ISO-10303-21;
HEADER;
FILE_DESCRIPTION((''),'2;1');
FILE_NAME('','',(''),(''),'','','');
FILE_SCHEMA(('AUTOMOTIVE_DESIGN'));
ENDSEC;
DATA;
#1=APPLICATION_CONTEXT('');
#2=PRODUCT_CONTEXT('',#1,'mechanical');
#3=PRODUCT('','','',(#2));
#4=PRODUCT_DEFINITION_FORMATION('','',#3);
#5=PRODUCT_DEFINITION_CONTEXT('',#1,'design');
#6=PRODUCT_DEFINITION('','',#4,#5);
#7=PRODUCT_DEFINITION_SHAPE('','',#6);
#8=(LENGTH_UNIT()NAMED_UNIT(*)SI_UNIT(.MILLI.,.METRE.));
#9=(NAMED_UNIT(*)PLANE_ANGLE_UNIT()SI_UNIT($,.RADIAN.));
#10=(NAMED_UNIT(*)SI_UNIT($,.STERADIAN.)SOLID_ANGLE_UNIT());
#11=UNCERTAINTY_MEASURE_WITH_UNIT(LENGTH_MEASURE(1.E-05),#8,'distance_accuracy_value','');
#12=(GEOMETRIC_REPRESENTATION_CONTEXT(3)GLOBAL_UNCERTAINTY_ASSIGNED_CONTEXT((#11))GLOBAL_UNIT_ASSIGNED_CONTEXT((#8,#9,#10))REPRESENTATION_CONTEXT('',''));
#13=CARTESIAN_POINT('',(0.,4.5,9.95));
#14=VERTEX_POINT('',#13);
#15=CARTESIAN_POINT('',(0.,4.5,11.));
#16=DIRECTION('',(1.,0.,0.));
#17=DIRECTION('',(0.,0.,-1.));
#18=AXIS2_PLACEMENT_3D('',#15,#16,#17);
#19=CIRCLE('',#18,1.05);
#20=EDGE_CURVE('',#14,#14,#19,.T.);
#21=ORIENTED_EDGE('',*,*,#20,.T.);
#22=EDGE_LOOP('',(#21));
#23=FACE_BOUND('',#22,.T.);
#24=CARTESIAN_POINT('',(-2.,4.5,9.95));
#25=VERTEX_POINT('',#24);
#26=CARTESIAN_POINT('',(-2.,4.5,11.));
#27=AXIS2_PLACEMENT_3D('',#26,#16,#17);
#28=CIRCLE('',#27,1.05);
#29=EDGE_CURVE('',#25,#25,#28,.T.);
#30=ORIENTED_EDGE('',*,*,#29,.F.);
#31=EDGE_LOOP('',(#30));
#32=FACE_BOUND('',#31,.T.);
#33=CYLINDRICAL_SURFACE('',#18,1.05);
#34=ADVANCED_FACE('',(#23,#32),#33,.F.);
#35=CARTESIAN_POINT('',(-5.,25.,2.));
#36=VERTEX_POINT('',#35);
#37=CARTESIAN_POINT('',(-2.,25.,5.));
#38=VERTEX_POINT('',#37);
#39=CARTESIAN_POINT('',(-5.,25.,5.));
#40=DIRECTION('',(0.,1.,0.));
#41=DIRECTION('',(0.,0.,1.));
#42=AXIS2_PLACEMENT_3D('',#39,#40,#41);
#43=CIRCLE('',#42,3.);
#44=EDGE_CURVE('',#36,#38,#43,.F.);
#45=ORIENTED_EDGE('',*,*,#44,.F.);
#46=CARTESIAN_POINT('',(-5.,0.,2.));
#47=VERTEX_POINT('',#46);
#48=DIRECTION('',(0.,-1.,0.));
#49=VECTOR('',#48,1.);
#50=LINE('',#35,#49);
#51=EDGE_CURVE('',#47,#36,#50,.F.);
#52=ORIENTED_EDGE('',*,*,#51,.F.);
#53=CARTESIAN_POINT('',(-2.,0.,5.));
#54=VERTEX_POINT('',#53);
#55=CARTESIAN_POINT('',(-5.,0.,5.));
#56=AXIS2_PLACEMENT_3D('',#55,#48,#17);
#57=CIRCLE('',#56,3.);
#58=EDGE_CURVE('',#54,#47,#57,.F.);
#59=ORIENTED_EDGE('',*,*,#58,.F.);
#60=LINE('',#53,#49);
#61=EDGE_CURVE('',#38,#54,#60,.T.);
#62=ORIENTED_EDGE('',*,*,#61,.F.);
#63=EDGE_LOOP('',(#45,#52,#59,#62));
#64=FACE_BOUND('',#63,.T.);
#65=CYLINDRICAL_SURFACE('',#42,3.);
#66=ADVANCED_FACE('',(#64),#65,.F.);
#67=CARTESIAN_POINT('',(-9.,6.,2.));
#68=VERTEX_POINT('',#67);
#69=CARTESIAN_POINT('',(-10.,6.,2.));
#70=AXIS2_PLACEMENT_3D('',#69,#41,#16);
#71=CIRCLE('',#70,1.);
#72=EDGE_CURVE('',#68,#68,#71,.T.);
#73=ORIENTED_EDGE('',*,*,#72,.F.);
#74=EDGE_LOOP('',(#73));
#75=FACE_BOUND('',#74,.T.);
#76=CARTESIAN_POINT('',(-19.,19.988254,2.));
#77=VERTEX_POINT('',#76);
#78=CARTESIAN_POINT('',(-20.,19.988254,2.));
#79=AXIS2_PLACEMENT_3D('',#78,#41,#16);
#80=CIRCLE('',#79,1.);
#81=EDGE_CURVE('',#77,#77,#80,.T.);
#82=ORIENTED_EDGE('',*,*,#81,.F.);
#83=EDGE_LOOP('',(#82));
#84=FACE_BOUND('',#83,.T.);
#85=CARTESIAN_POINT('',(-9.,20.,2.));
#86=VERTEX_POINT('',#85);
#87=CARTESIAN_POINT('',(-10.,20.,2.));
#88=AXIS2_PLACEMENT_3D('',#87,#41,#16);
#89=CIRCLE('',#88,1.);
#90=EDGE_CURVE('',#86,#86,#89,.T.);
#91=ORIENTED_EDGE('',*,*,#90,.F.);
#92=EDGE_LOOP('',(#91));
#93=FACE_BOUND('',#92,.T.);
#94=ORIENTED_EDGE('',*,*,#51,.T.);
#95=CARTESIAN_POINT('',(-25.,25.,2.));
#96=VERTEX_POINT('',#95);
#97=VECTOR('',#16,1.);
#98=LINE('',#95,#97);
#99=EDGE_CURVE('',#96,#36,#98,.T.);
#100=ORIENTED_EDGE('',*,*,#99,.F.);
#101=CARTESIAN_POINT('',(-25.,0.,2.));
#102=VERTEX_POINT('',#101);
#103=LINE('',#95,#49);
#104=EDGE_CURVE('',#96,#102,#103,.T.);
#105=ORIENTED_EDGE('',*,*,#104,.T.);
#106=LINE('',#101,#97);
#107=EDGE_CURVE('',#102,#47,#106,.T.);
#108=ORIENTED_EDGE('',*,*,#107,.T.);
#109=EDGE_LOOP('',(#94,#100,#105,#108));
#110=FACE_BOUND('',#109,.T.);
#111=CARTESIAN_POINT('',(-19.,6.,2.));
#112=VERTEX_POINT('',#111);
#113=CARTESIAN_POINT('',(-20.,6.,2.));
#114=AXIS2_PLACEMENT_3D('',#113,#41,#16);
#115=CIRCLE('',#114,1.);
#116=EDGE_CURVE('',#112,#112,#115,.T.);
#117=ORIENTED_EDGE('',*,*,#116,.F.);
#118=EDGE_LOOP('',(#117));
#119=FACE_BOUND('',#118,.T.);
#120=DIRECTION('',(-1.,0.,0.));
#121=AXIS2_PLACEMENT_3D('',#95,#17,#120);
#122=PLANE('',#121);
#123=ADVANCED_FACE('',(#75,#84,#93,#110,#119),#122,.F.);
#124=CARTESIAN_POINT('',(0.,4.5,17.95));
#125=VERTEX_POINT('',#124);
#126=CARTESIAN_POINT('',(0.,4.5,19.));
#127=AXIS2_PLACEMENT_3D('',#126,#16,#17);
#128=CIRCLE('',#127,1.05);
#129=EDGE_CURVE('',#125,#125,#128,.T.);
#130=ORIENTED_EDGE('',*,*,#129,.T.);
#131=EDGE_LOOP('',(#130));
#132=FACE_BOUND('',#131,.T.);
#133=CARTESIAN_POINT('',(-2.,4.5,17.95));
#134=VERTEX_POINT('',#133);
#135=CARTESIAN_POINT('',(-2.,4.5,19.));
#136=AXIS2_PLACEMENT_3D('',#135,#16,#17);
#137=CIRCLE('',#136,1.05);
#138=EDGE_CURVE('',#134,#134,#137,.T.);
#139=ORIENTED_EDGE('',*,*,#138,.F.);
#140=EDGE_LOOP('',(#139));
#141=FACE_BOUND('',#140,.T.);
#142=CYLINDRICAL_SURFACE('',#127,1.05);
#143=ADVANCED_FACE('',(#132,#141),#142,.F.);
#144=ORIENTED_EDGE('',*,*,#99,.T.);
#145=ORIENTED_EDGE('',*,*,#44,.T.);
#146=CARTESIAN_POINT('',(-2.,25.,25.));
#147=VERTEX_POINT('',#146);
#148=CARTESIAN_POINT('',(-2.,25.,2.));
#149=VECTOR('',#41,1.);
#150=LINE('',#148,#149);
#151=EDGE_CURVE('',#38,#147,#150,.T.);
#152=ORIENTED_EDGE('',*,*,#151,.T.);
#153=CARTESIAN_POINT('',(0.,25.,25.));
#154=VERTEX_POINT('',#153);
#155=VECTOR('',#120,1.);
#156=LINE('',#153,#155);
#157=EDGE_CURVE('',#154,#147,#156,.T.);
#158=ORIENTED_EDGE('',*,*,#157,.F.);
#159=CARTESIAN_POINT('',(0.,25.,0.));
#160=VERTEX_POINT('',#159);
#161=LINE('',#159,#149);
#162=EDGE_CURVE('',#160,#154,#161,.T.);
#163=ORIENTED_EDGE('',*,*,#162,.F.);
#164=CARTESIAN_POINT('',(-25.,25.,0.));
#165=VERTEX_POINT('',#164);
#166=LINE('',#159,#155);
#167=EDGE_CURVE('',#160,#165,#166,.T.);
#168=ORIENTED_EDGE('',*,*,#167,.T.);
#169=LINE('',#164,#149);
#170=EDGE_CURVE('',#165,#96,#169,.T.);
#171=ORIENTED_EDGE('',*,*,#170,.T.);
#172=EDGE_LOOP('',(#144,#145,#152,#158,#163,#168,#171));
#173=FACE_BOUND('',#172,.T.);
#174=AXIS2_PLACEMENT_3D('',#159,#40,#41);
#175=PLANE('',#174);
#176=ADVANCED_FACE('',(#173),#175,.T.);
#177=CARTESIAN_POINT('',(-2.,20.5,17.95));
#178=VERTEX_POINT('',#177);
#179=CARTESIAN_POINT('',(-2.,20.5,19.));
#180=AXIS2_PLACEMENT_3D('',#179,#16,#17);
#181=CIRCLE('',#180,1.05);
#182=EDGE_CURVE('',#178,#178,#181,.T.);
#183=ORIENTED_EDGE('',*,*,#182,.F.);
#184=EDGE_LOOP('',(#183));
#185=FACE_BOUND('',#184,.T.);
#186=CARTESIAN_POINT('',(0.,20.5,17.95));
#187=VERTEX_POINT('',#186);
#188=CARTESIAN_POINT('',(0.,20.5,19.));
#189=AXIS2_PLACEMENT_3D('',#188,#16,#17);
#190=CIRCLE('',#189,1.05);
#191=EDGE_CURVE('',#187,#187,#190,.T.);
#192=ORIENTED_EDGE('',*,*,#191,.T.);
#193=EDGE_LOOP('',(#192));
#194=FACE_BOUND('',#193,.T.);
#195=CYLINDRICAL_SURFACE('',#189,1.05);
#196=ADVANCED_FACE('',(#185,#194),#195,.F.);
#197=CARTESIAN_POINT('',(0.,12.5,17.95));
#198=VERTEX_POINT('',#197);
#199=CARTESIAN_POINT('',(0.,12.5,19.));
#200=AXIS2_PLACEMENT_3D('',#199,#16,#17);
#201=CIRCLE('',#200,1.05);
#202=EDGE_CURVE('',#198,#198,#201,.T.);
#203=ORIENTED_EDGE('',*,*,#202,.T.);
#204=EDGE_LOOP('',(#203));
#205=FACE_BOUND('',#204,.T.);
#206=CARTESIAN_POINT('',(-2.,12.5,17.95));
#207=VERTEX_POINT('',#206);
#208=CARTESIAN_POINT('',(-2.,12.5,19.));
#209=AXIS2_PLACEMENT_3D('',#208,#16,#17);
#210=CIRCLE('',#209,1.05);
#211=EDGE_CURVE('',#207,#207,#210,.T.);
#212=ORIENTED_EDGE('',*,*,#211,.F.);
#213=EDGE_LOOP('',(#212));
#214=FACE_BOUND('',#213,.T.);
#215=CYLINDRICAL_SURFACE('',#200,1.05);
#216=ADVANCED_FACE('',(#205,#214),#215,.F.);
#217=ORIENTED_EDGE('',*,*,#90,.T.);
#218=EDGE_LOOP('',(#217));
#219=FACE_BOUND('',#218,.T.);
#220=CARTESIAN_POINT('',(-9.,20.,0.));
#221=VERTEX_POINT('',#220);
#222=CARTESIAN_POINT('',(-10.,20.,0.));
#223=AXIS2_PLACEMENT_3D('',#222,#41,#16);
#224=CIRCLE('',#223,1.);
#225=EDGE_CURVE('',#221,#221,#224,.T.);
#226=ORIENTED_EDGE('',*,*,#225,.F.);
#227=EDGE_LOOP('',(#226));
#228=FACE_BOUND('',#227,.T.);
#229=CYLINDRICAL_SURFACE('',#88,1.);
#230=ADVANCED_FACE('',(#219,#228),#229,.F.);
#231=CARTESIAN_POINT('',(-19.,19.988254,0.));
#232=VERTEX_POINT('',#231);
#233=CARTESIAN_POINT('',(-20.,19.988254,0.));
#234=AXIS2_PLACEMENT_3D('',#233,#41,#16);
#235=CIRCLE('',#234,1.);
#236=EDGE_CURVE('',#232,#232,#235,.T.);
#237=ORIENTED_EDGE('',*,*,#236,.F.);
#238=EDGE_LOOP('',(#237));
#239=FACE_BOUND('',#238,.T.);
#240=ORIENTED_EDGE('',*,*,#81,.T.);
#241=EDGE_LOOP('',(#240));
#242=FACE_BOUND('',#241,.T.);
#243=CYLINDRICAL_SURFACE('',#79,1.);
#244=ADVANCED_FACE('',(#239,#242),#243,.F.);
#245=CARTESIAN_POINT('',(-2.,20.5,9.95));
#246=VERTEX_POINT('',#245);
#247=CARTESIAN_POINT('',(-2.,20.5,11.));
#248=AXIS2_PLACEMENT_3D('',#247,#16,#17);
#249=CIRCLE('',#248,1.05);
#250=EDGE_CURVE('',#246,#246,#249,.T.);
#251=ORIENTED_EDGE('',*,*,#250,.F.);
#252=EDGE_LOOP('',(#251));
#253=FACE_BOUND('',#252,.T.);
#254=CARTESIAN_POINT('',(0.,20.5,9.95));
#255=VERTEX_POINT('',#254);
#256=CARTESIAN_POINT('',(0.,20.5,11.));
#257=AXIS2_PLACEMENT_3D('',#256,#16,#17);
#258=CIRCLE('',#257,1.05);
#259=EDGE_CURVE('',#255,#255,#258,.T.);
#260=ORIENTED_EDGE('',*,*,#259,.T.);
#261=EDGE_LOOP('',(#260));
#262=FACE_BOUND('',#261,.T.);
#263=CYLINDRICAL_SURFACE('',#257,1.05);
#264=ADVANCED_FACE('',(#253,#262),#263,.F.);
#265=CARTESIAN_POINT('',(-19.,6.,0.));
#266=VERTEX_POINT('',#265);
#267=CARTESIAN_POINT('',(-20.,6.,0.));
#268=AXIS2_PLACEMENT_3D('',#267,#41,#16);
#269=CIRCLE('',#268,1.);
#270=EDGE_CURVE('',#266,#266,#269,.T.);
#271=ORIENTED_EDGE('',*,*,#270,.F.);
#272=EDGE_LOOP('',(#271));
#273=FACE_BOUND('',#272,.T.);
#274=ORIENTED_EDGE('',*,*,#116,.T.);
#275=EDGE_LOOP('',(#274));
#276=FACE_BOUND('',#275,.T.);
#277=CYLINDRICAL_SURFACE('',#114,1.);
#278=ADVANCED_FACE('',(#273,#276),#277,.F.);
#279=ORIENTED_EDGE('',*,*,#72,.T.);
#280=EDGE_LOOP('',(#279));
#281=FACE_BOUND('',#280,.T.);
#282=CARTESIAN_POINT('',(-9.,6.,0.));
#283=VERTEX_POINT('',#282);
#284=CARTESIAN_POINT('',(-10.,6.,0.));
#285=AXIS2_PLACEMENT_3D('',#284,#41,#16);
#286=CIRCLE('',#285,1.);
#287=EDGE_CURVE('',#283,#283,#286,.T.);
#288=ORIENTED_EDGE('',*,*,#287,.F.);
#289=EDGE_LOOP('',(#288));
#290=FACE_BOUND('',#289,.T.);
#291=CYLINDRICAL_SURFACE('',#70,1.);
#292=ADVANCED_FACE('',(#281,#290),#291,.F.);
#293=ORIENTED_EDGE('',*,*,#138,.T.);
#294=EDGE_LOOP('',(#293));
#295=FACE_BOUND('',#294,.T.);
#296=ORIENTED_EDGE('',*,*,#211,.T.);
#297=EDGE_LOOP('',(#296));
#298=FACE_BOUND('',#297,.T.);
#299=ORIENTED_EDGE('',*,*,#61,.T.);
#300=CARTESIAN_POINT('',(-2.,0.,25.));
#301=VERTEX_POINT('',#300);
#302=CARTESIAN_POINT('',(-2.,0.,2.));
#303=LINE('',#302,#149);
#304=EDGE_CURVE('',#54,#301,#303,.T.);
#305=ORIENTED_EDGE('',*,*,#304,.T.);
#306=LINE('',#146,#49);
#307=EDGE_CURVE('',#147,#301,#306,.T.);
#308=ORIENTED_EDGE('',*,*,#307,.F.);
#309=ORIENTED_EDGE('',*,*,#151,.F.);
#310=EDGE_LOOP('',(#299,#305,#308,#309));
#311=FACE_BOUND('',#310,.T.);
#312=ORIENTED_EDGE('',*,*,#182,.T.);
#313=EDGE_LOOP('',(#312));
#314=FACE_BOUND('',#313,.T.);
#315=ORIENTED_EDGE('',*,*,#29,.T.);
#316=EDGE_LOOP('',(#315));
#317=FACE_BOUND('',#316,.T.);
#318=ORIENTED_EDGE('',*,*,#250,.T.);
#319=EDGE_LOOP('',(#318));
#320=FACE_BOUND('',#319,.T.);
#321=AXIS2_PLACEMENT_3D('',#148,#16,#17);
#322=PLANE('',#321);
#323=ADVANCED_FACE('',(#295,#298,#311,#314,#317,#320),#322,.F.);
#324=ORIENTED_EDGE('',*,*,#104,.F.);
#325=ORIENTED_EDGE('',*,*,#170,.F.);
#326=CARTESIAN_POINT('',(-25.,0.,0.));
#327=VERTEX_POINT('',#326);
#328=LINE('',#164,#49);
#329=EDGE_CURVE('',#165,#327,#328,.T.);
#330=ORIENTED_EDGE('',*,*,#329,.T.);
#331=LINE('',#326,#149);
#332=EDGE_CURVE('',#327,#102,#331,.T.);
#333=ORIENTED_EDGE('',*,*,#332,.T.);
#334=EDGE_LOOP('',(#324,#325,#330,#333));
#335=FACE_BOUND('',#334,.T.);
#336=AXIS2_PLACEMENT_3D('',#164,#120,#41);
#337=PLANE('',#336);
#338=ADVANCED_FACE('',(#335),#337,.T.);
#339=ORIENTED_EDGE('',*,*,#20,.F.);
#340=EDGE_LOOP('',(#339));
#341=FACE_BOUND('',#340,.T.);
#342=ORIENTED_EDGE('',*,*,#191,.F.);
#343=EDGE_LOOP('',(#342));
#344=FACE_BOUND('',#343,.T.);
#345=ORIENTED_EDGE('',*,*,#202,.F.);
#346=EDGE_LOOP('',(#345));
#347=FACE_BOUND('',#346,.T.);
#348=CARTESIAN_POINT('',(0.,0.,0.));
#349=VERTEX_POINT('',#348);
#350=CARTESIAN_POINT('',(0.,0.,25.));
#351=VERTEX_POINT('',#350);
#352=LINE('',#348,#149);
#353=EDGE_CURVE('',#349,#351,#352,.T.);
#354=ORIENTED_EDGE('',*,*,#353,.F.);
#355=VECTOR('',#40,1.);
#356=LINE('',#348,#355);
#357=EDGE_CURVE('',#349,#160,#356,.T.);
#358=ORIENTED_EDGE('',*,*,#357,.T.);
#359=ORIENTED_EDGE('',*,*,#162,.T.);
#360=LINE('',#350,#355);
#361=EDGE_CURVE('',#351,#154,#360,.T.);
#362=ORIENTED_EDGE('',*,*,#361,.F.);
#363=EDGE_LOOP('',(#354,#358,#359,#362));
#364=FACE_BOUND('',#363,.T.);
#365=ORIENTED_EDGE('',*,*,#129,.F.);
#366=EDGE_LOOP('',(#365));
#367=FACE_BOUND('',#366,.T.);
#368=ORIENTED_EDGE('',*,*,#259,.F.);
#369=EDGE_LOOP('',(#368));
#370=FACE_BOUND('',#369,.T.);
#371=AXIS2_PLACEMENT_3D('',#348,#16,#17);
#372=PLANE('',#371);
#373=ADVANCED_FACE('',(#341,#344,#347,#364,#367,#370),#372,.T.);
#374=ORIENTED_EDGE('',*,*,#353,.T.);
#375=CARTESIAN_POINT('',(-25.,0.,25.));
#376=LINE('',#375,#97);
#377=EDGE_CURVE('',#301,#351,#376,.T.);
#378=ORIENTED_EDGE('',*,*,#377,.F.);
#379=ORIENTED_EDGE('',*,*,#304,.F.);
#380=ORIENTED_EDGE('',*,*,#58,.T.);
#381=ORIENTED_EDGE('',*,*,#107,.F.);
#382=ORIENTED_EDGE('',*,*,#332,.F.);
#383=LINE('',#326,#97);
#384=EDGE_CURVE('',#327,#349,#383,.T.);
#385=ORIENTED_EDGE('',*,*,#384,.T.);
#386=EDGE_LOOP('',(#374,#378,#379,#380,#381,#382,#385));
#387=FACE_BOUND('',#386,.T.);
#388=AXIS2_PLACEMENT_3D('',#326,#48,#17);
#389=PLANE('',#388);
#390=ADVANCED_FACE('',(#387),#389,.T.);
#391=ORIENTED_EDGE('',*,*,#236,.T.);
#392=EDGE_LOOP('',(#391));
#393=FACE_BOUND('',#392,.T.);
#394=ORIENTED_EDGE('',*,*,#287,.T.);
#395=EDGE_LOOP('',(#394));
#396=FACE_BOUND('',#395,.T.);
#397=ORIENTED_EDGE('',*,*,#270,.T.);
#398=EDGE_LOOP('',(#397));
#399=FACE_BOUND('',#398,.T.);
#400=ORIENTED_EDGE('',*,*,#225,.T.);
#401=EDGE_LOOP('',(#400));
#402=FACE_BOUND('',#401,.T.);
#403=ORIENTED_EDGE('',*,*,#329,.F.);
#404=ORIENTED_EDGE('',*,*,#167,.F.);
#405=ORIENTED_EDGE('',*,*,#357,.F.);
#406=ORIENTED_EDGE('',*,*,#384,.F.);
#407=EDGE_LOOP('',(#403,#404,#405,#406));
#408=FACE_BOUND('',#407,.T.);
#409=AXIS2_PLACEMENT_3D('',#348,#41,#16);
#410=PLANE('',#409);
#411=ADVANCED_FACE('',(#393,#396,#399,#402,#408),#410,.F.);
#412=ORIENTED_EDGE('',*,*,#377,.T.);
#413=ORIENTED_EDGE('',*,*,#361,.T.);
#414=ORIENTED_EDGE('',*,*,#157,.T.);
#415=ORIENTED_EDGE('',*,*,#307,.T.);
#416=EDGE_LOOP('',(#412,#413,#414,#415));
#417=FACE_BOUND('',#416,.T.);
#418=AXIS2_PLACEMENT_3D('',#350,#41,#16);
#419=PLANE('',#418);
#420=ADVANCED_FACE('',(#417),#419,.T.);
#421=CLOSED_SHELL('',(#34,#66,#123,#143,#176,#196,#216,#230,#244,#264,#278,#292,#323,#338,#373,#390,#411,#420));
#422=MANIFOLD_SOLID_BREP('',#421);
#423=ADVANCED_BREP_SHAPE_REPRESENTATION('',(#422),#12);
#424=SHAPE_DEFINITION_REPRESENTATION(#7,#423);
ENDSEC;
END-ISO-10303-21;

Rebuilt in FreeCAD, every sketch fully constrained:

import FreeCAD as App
import Part
import Sketcher
from FreeCAD import Vector


def edges_at(feature, points):
    """Names of the edges that pass closest to the given points."""
    edges = feature.Shape.Edges
    near = lambda p: min(range(len(edges)), key=lambda i: edges[i].distToShape(Part.Vertex(*p))[0])
    return sorted({f"Edge{near(p) + 1}" for p in points})


def add_polygon(sketch, points):
    """Adds a closed chain of lines whose ends are joined by coincident constraints."""
    first, n = sketch.GeometryCount, len(points)
    for a, b in zip(points, points[1:] + points[:1]):
        sketch.addGeometry(Part.LineSegment(App.Vector(*a, 0), App.Vector(*b, 0)), False)
    for i in range(n):
        sketch.addConstraint(Sketcher.Constraint("Coincident", first + i, 2, first + (i + 1) % n, 1))

doc = App.newDocument("Part")
body = doc.addObject("PartDesign::Body", "Body")

# Sketch on XY plane
sketch1 = body.newObject("Sketcher::SketchObject", "Sketch")
sketch1.AttachmentSupport = (doc.getObject("XY_Plane"), [""])
sketch1.MapMode = "FlatFace"
sketch1.AttachmentOffset = App.Placement(Vector(0, 0, 25), App.Rotation())
add_polygon(sketch1, [(-25, 25), (-25, 0), (0, 0), (0, 25)])  # lines 0-3
sketch1.addConstraint([
    Sketcher.Constraint("Vertical", 0),
    Sketcher.Constraint("Horizontal", 1),
    Sketcher.Constraint("Vertical", 2),
    Sketcher.Constraint("Horizontal", 3),
    Sketcher.Constraint("Coincident", 1, 2, -1, 1),
    Sketcher.Constraint("Equal", 3, 0),
    Sketcher.Constraint("DistanceX", 1, 1, 1, 2, 25.0),
])
pad1 = body.newObject("PartDesign::Pad", "Pad")
pad1.Profile = sketch1
pad1.Length = 25
pad1.Reversed = True

# Sketch on XZ plane
sketch2 = body.newObject("Sketcher::SketchObject", "Sketch001")
sketch2.AttachmentSupport = (doc.getObject("XZ_Plane"), [""])
sketch2.MapMode = "FlatFace"
add_polygon(sketch2, [(-25, 25), (-25, 2), (-2, 2), (-2, 25)])  # lines 0-3
sketch2.addConstraint([
    Sketcher.Constraint("Vertical", 0),
    Sketcher.Constraint("Horizontal", 1),
    Sketcher.Constraint("Vertical", 2),
    Sketcher.Constraint("Horizontal", 3),
    Sketcher.Constraint("Equal", 3, 0),
    Sketcher.Constraint("DistanceX", 1, 1, 1, 2, 23.0),
    Sketcher.Constraint("DistanceX", 0, 2, -1, 1, 25.0),
    Sketcher.Constraint("DistanceY", -1, 1, 0, 2, 2.0),
])
pocket1 = body.newObject("PartDesign::Pocket", "Pocket")
pocket1.Profile = sketch2
pocket1.Type = "ThroughAll"

# Sketch on XY plane
sketch3 = body.newObject("Sketcher::SketchObject", "Sketch002")
sketch3.AttachmentSupport = (doc.getObject("XY_Plane"), [""])
sketch3.MapMode = "FlatFace"
sketch3.AttachmentOffset = App.Placement(Vector(0, 0, 2), App.Rotation())
sketch3.addGeometry([
    Part.Circle(Vector(-10, 20, 0), Vector(0, 0, 1), 1),
    Part.Circle(Vector(-10, 6, 0), Vector(0, 0, 1), 1),
    Part.Circle(Vector(-20, 6, 0), Vector(0, 0, 1), 1),
    Part.Circle(Vector(-20, 20, 0), Vector(0, 0, 1), 1),
], False)
sketch3.addConstraint([
    Sketcher.Constraint("Equal", 0, 1),
    Sketcher.Constraint("Equal", 1, 2),
    Sketcher.Constraint("Equal", 2, 3),
    Sketcher.Constraint("Horizontal", 1, 3, 2, 3),
    Sketcher.Constraint("Vertical", 0, 3, 1, 3),
    Sketcher.Constraint("Vertical", 2, 3, 3, 3),
    Sketcher.Constraint("Diameter", 0, 2.0),
    Sketcher.Constraint("DistanceX", 0, 3, -1, 1, 10.0),
    Sketcher.Constraint("DistanceY", -1, 1, 0, 3, 20.0),
    Sketcher.Constraint("DistanceY", -1, 1, 1, 3, 6.0),
    Sketcher.Constraint("DistanceX", 2, 3, -1, 1, 20.0),
    Sketcher.Constraint("DistanceY", -1, 1, 3, 3, 19.988254),
])
doc.recompute()
hole = body.newObject("PartDesign::Hole", "Hole")
hole.Profile = sketch3
hole.ThreadType = "None"
hole.Diameter = 2
hole.DepthType = "ThroughAll"

# Sketch on YZ plane
sketch4 = body.newObject("Sketcher::SketchObject", "Sketch003")
sketch4.AttachmentSupport = (doc.getObject("YZ_Plane"), [""])
sketch4.MapMode = "FlatFace"
sketch4.addGeometry([
    Part.Circle(Vector(20.5, 19, 0), Vector(0, 0, 1), 1.1),  # 0
    Part.Circle(Vector(4.5, 19, 0), Vector(0, 0, 1), 1.1),  # 1
    Part.Circle(Vector(12.5, 19, 0), Vector(0, 0, 1), 1.1),  # 2
    Part.Circle(Vector(4.5, 11, 0), Vector(0, 0, 1), 1.1),  # 3
    Part.Circle(Vector(20.5, 11, 0), Vector(0, 0, 1), 1.1),  # 4
], False)
sketch4.addConstraint([
    Sketcher.Constraint("Equal", 0, 1),
    Sketcher.Constraint("Equal", 1, 2),
    Sketcher.Constraint("Equal", 2, 3),
    Sketcher.Constraint("Equal", 3, 4),
    Sketcher.Constraint("Horizontal", 0, 3, 1, 3),
    Sketcher.Constraint("Horizontal", 1, 3, 2, 3),
    Sketcher.Constraint("Horizontal", 3, 3, 4, 3),
    Sketcher.Constraint("Vertical", 1, 3, 3, 3),
    Sketcher.Constraint("Vertical", 0, 3, 4, 3),
    Sketcher.Constraint("Diameter", 0, 2.1),
    Sketcher.Constraint("DistanceY", -1, 1, 0, 3, 19.0),
    Sketcher.Constraint("DistanceY", -1, 1, 3, 3, 11.0),
    Sketcher.Constraint("DistanceX", 1, 3, 0, 3, 16.0),
    Sketcher.Constraint("DistanceX", 2, 3, 0, 3, 8.0),
    Sketcher.Constraint("DistanceX", -1, 1, 0, 3, 20.5),
])
doc.recompute()
hole2 = body.newObject("PartDesign::Hole", "Hole001")
hole2.Profile = sketch4
hole2.ThreadType = "None"
hole2.Diameter = 2.1
hole2.DepthType = "Dimension"
hole2.Depth = 25
hole2.DrillPoint = "Flat"
doc.recompute()

fillet = body.newObject("PartDesign::Fillet", "Fillet")
fillet.Base = (hole2, edges_at(hole2, [(-2, 12.5, 2)]))
fillet.Radius = 3

doc.recompute()
